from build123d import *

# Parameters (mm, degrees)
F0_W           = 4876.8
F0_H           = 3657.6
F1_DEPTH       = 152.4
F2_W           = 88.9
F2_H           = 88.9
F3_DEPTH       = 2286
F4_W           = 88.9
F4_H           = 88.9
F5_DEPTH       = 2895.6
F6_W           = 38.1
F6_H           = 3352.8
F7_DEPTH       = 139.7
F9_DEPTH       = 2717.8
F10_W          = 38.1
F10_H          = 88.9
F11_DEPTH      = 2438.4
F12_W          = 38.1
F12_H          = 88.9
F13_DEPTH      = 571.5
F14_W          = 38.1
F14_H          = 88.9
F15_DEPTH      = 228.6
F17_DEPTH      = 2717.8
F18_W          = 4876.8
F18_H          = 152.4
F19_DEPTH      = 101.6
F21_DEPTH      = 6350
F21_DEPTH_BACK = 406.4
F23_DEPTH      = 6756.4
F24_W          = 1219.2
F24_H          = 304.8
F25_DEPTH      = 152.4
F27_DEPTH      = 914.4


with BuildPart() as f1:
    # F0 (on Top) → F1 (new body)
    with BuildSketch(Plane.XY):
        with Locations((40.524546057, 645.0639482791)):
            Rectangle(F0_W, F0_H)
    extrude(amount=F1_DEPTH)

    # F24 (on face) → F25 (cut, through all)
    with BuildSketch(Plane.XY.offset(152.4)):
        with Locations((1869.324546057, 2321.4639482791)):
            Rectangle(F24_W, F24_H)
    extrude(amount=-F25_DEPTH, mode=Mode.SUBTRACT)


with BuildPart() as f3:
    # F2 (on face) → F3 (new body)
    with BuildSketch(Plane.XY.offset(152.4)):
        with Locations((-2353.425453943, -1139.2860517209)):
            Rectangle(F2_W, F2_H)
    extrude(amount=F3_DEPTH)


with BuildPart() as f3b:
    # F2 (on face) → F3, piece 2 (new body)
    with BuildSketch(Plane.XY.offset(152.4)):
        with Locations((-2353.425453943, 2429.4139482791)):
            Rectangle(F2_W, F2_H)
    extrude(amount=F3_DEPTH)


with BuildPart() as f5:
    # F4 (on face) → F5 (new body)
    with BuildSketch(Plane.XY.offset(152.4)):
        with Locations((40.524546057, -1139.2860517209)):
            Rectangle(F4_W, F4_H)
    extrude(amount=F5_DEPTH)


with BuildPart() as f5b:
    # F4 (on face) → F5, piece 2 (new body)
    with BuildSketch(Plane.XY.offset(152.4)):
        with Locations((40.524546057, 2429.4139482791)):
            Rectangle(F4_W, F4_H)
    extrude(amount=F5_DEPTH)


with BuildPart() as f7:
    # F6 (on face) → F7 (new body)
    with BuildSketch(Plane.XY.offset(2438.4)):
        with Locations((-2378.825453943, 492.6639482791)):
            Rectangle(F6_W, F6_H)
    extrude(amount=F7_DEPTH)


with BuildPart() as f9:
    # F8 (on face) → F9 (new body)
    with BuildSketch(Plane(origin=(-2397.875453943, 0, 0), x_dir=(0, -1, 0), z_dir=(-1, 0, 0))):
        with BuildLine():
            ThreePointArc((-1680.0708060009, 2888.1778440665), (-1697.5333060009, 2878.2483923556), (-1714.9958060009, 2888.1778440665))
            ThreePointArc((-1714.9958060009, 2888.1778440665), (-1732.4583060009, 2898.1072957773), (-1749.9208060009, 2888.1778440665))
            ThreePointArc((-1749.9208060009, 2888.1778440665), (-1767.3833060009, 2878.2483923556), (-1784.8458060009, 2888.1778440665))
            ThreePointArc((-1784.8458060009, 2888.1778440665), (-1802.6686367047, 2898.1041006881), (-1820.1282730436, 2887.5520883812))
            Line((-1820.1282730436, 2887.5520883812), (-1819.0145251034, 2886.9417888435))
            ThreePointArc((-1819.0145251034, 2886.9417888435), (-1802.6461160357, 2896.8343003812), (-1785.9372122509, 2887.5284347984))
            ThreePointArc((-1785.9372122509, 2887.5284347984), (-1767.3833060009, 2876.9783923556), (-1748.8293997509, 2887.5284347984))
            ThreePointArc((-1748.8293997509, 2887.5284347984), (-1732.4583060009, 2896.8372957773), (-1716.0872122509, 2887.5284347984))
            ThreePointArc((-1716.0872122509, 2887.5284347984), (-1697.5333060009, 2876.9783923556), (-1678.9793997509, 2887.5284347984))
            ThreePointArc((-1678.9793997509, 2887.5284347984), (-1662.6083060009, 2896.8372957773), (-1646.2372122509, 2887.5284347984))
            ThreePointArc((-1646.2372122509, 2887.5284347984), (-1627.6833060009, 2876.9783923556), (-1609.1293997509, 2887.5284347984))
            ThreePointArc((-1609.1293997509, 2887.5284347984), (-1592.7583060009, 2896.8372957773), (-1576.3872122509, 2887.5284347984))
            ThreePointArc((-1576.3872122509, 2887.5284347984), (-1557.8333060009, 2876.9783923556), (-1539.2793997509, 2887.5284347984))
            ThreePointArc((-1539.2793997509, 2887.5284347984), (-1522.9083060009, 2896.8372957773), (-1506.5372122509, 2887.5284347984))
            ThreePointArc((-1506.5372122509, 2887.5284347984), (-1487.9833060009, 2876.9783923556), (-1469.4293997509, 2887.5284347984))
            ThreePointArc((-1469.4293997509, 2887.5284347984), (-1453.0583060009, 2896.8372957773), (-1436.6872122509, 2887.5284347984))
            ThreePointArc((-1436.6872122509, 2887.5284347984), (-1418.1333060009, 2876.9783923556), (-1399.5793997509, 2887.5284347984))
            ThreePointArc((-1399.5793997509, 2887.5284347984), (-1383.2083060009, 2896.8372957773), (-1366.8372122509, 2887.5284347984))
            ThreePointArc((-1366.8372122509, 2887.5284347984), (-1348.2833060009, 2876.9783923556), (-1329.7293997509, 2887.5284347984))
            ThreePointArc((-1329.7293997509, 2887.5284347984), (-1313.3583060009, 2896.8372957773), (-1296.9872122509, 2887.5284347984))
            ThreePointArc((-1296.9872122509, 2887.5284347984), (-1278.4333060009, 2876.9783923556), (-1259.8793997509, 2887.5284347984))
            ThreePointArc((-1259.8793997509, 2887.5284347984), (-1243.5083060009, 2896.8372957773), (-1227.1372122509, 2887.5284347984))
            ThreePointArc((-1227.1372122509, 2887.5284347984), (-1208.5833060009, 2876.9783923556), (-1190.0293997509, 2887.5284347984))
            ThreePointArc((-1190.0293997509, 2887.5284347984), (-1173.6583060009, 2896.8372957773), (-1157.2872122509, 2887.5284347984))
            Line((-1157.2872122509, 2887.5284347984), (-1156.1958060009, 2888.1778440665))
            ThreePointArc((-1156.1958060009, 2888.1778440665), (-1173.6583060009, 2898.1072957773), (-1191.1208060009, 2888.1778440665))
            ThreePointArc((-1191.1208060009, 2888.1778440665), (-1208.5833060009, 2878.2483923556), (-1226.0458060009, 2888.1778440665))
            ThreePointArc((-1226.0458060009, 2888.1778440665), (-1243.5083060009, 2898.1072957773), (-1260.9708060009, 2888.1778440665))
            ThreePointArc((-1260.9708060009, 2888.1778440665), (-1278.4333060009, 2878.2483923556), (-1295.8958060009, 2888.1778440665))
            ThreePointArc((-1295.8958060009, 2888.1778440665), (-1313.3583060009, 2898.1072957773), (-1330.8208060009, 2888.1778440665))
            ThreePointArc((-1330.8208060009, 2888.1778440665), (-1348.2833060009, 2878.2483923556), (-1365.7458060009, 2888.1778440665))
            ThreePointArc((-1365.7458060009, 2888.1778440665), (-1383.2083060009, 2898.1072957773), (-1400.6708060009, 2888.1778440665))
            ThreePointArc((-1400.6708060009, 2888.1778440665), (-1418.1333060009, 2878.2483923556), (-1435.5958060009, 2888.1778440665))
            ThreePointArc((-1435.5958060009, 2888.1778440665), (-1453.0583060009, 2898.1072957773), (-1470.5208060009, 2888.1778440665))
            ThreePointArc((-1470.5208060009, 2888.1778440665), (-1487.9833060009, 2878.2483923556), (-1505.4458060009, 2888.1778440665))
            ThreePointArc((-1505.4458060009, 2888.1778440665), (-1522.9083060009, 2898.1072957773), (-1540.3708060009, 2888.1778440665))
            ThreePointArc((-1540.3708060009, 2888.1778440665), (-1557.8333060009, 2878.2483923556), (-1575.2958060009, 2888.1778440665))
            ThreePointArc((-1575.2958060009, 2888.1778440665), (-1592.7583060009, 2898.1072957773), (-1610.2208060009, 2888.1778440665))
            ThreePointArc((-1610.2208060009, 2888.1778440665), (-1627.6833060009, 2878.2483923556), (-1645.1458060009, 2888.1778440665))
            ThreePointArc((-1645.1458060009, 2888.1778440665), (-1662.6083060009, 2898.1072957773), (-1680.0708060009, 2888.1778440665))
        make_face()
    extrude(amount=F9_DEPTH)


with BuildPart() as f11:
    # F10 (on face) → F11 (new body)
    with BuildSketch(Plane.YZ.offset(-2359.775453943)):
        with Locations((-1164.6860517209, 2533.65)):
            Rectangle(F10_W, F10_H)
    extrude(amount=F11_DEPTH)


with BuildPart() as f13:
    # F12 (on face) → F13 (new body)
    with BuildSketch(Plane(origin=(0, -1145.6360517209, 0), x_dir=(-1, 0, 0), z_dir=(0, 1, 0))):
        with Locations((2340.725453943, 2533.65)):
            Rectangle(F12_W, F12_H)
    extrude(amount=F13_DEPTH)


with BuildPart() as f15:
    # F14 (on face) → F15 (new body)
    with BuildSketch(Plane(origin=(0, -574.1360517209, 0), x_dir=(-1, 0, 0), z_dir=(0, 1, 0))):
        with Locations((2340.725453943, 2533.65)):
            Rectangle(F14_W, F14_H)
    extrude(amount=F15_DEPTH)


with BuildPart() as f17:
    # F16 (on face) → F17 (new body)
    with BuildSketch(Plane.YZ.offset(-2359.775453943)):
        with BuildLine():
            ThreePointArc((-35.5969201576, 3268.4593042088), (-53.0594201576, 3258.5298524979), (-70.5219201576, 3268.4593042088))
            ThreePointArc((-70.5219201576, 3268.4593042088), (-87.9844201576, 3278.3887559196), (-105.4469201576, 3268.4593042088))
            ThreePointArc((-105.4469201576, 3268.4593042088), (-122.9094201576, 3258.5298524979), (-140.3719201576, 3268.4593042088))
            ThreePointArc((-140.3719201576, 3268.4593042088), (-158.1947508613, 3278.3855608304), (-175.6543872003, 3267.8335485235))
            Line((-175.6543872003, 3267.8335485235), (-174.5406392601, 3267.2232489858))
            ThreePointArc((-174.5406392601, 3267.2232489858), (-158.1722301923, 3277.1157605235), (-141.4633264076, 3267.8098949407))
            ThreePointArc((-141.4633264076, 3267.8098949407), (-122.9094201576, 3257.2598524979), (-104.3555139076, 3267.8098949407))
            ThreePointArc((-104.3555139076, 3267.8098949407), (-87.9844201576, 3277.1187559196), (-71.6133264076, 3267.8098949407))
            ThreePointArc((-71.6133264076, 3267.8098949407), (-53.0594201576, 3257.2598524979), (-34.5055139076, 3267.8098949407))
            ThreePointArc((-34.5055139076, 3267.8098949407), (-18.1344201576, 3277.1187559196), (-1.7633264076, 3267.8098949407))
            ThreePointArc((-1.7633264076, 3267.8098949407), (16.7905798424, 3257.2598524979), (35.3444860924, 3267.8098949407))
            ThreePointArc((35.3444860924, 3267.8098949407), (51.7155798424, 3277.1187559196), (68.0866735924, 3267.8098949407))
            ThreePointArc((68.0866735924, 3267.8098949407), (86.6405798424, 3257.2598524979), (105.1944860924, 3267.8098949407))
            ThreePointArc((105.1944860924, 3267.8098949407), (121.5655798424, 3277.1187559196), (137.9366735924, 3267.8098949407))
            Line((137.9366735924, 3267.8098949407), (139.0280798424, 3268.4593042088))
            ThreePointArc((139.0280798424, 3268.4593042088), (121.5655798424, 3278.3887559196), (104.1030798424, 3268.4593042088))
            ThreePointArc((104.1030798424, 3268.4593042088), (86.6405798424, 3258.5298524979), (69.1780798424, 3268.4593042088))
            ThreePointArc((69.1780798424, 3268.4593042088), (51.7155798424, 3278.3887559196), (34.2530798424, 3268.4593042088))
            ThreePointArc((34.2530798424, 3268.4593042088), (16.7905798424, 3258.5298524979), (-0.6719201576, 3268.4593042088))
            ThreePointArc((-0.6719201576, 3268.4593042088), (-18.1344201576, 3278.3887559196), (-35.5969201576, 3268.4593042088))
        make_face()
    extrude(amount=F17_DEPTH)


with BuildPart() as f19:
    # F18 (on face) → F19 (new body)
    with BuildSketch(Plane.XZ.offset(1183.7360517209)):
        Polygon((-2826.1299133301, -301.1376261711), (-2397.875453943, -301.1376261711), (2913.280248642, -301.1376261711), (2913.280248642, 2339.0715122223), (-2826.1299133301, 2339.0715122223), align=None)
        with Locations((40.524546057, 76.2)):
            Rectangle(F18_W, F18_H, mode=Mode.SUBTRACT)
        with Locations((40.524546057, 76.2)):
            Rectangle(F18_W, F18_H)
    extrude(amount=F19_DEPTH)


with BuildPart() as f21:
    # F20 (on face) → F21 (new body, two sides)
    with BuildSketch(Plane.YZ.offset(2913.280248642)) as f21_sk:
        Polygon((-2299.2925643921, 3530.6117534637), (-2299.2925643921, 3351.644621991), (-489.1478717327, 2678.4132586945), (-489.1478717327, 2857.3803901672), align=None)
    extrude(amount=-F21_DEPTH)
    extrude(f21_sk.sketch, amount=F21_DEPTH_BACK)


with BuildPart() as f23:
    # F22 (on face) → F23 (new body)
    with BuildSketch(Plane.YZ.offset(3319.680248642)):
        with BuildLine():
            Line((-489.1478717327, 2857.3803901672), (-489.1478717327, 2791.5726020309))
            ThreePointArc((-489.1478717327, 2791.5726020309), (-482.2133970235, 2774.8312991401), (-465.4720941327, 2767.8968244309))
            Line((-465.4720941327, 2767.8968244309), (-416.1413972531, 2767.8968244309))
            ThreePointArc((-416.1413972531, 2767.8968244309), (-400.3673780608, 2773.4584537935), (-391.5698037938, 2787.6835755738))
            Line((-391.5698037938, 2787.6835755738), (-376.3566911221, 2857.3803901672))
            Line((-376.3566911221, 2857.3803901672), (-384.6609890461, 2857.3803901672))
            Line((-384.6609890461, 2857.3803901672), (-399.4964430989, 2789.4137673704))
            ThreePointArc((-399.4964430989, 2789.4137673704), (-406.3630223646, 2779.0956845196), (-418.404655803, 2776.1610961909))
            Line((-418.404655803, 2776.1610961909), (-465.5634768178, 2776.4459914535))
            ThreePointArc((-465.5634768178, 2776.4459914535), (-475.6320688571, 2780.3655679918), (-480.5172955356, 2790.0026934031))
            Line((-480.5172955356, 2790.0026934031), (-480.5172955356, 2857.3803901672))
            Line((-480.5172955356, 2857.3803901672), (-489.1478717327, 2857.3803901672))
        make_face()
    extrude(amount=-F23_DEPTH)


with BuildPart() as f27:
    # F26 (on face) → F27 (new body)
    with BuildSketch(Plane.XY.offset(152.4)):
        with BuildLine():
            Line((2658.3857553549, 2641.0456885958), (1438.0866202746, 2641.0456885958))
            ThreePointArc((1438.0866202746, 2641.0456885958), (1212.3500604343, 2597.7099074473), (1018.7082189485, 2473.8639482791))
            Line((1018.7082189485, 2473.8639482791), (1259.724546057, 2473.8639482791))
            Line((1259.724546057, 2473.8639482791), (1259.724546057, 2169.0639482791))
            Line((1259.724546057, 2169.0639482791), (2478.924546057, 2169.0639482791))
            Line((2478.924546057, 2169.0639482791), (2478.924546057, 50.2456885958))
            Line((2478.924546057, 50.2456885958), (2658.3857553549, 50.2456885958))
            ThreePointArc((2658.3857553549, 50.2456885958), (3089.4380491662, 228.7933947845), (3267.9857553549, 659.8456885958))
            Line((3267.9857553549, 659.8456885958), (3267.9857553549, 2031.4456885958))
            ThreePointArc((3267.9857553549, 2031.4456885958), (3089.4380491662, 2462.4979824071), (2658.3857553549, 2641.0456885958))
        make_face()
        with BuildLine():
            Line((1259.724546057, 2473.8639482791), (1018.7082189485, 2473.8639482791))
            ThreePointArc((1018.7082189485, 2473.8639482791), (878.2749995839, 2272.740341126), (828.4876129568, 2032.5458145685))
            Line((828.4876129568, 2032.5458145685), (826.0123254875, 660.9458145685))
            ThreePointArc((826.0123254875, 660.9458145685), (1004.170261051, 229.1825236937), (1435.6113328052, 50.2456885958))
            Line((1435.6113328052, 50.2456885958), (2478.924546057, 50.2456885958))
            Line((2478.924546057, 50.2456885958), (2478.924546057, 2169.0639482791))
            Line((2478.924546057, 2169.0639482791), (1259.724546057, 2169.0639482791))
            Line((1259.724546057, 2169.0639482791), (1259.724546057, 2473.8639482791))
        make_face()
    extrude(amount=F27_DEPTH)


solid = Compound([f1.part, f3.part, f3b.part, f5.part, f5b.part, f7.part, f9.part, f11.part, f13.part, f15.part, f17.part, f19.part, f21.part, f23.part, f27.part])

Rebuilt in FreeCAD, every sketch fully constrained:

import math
import FreeCAD as App
import Part
import Sketcher
from FreeCAD import Vector
Q = App.Units.Quantity


def add_polygon(sketch, points):
    """Adds a closed chain of lines whose ends are joined by coincident constraints."""
    first, n = sketch.GeometryCount, len(points)
    for a, b in zip(points, points[1:] + points[:1]):
        sketch.addGeometry(Part.LineSegment(App.Vector(*a, 0), App.Vector(*b, 0)), False)
    for i in range(n):
        sketch.addConstraint(Sketcher.Constraint("Coincident", first + i, 2, first + (i + 1) % n, 1))

doc = App.newDocument("Part")
params = doc.addObject("Spreadsheet::Sheet", "Params")
for row, (alias, value) in enumerate([
    ("sketch1_width", "192 in"),
    ("sketch1_height", "144 in"),
    ("pad1_length", "6 in"),
    ("sketch2_width", "48 in"),
    ("sketch2_height", "12 in"),
    ("sketch3_width", "3.5 in"),
    ("pad2_length", "90 in"),
    ("sketch4_width", "3.5 in"),
    ("pad3_length", "90 in"),
    ("sketch5_width", "3.5 in"),
    ("pad4_length", "114 in"),
    ("sketch6_width", "3.5 in"),
    ("pad5_length", "114 in"),
    ("sketch7_height", "132 in"),
    ("sketch7_width", "1.5 in"),
    ("pad6_length", "5.5 in"),
    ("sketch8_radius", "0.8 in"),
    ("sketch8_radius2", "0.75 in"),
    ("pad7_length", "107 in"),
    ("sketch9_width", "1.5 in"),
    ("sketch9_height", "3.5 in"),
    ("pad8_length", "96 in"),
    ("sketch10_width", "1.5 in"),
    ("sketch10_height", "3.5 in"),
    ("pad9_length", "22.5 in"),
    ("sketch11_width", "1.5 in"),
    ("sketch11_height", "3.5 in"),
    ("pad10_length", "9 in"),
    ("sketch12_radius", "0.8 in"),
    ("sketch12_radius2", "0.75 in"),
    ("pad11_length", "107 in"),
    ("pad12_length", "4 in"),
    ("pad13_length", "250 in"),
    ("pad13_length2", "16 in"),
    ("pad14_length", "266 in"),
    ("sketch16_radius", "24 in"),
    ("sketch16_height", "54 in"),
    ("pad15_length", "36 in"),
], start=1):
    params.set(f"A{row}", alias)
    params.set(f"B{row}", "=" + value)
    params.setAlias(f"B{row}", alias)

body = doc.addObject("PartDesign::Body", "Body")

# Sketch on XY plane
sketch1 = body.newObject("Sketcher::SketchObject", "Sketch")
sketch1.AttachmentSupport = (doc.getObject("XY_Plane"), [""])
sketch1.MapMode = "FlatFace"
add_polygon(sketch1, [(-2397.875454, 2473.863948), (-2397.875454, -1183.736052), (2478.924546, -1183.736052), (2478.924546, 2473.863948)])  # lines 0-3
sketch1.addConstraint([
    Sketcher.Constraint("Vertical", 0),
    Sketcher.Constraint("Horizontal", 1),
    Sketcher.Constraint("Vertical", 2),
    Sketcher.Constraint("Horizontal", 3),
    Sketcher.Constraint("DistanceX", 1, 1, 1, 2, Q("192 in")),
    Sketcher.Constraint("DistanceY", 0, 2, 0, 1, Q("144 in")),
    Sketcher.Constraint("DistanceY", 0, 2, -1, 1, 1183.736052),
    Sketcher.Constraint("DistanceX", 0, 2, -1, 1, 2397.875454),
])
sketch1.setExpression("Constraints[8]", "Params.sketch1_width")
sketch1.setExpression("Constraints[9]", "Params.sketch1_height")
pad1 = body.newObject("PartDesign::Pad", "Pad")
pad1.Profile = sketch1
pad1.setExpression("Length", "Params.pad1_length")

# Sketch on XY plane
sketch2 = body.newObject("Sketcher::SketchObject", "Sketch001")
sketch2.AttachmentSupport = (doc.getObject("XY_Plane"), [""])
sketch2.MapMode = "FlatFace"
sketch2.AttachmentOffset = App.Placement(Vector(0, 0, 6 * 25.4), App.Rotation())
add_polygon(sketch2, [(1259.724546, 2473.863948), (1259.724546, 2169.063948), (2478.924546, 2169.063948), (2478.924546, 2473.863948)])  # lines 0-3
sketch2.addConstraint([
    Sketcher.Constraint("Vertical", 0),
    Sketcher.Constraint("Horizontal", 1),
    Sketcher.Constraint("Vertical", 2),
    Sketcher.Constraint("Horizontal", 3),
    Sketcher.Constraint("DistanceX", 1, 1, 1, 2, Q("48 in")),
    Sketcher.Constraint("DistanceY", 0, 2, 0, 1, Q("12 in")),
    Sketcher.Constraint("DistanceY", -1, 1, 0, 2, 2169.063948),
    Sketcher.Constraint("DistanceX", -1, 1, 0, 2, 1259.724546),
])
sketch2.setExpression("Constraints[8]", "Params.sketch2_width")
sketch2.setExpression("Constraints[9]", "Params.sketch2_height")
pocket1 = body.newObject("PartDesign::Pocket", "Pocket")
pocket1.Profile = sketch2
pocket1.Type = "ThroughAll"
body2 = doc.addObject("PartDesign::Body", "Body001")

# Sketch on XY plane
sketch3 = body2.newObject("Sketcher::SketchObject", "Sketch002")
sketch3.AttachmentSupport = (doc.getObject("XY_Plane001"), [""])
sketch3.MapMode = "FlatFace"
sketch3.AttachmentOffset = App.Placement(Vector(0, 0, 6 * 25.4), App.Rotation())
add_polygon(sketch3, [(-2397.875454, -1094.836052), (-2397.875454, -1183.736052), (-2308.975454, -1183.736052), (-2308.975454, -1094.836052)])  # lines 0-3
sketch3.addConstraint([
    Sketcher.Constraint("Vertical", 0),
    Sketcher.Constraint("Horizontal", 1),
    Sketcher.Constraint("Vertical", 2),
    Sketcher.Constraint("Horizontal", 3),
    Sketcher.Constraint("Equal", 3, 0),
    Sketcher.Constraint("DistanceX", 1, 1, 1, 2, Q("3.5 in")),
    Sketcher.Constraint("DistanceY", 0, 2, -1, 1, 1183.736052),
    Sketcher.Constraint("DistanceX", 0, 2, -1, 1, 2397.875454),
])
sketch3.setExpression("Constraints[9]", "Params.sketch3_width")
pad2 = body2.newObject("PartDesign::Pad", "Pad001")
pad2.Profile = sketch3
pad2.setExpression("Length", "Params.pad2_length")
body3 = doc.addObject("PartDesign::Body", "Body002")

# Sketch on XY plane
sketch4 = body3.newObject("Sketcher::SketchObject", "Sketch003")
sketch4.AttachmentSupport = (doc.getObject("XY_Plane002"), [""])
sketch4.MapMode = "FlatFace"
sketch4.AttachmentOffset = App.Placement(Vector(0, 0, 6 * 25.4), App.Rotation())
add_polygon(sketch4, [(-2397.875454, 2473.863948), (-2397.875454, 2384.963948), (-2308.975454, 2384.963948), (-2308.975454, 2473.863948)])  # lines 0-3
sketch4.addConstraint([
    Sketcher.Constraint("Vertical", 0),
    Sketcher.Constraint("Horizontal", 1),
    Sketcher.Constraint("Vertical", 2),
    Sketcher.Constraint("Horizontal", 3),
    Sketcher.Constraint("Equal", 3, 0),
    Sketcher.Constraint("DistanceX", 1, 1, 1, 2, Q("3.5 in")),
    Sketcher.Constraint("DistanceY", -1, 1, 0, 2, 2384.963948),
    Sketcher.Constraint("DistanceX", 0, 2, -1, 1, 2397.875454),
])
sketch4.setExpression("Constraints[9]", "Params.sketch4_width")
pad3 = body3.newObject("PartDesign::Pad", "Pad002")
pad3.Profile = sketch4
pad3.setExpression("Length", "Params.pad3_length")
body4 = doc.addObject("PartDesign::Body", "Body003")

# Sketch on XY plane
sketch5 = body4.newObject("Sketcher::SketchObject", "Sketch004")
sketch5.AttachmentSupport = (doc.getObject("XY_Plane003"), [""])
sketch5.MapMode = "FlatFace"
sketch5.AttachmentOffset = App.Placement(Vector(0, 0, 6 * 25.4), App.Rotation())
add_polygon(sketch5, [(-3.925454, -1094.836052), (-3.925454, -1183.736052), (84.974546, -1183.736052), (84.974546, -1094.836052)])  # lines 0-3
sketch5.addConstraint([
    Sketcher.Constraint("Vertical", 0),
    Sketcher.Constraint("Horizontal", 1),
    Sketcher.Constraint("Vertical", 2),
    Sketcher.Constraint("Horizontal", 3),
    Sketcher.Constraint("Equal", 3, 0),
    Sketcher.Constraint("DistanceX", 1, 1, 1, 2, Q("3.5 in")),
    Sketcher.Constraint("DistanceY", 0, 2, -1, 1, 1183.736052),
    Sketcher.Constraint("DistanceX", 0, 2, -1, 1, 3.925454),
])
sketch5.setExpression("Constraints[9]", "Params.sketch5_width")
pad4 = body4.newObject("PartDesign::Pad", "Pad003")
pad4.Profile = sketch5
pad4.setExpression("Length", "Params.pad4_length")
body5 = doc.addObject("PartDesign::Body", "Body004")

# Sketch on XY plane
sketch6 = body5.newObject("Sketcher::SketchObject", "Sketch005")
sketch6.AttachmentSupport = (doc.getObject("XY_Plane004"), [""])
sketch6.MapMode = "FlatFace"
sketch6.AttachmentOffset = App.Placement(Vector(0, 0, 6 * 25.4), App.Rotation())
add_polygon(sketch6, [(-3.925454, 2473.863948), (-3.925454, 2384.963948), (84.974546, 2384.963948), (84.974546, 2473.863948)])  # lines 0-3
sketch6.addConstraint([
    Sketcher.Constraint("Vertical", 0),
    Sketcher.Constraint("Horizontal", 1),
    Sketcher.Constraint("Vertical", 2),
    Sketcher.Constraint("Horizontal", 3),
    Sketcher.Constraint("Equal", 3, 0),
    Sketcher.Constraint("DistanceX", 1, 1, 1, 2, Q("3.5 in")),
    Sketcher.Constraint("DistanceY", -1, 1, 0, 2, 2384.963948),
    Sketcher.Constraint("DistanceX", 0, 2, -1, 1, 3.925454),
])
sketch6.setExpression("Constraints[9]", "Params.sketch6_width")
pad5 = body5.newObject("PartDesign::Pad", "Pad004")
pad5.Profile = sketch6
pad5.setExpression("Length", "Params.pad5_length")
body6 = doc.addObject("PartDesign::Body", "Body005")

# Sketch on XY plane
sketch7 = body6.newObject("Sketcher::SketchObject", "Sketch006")
sketch7.AttachmentSupport = (doc.getObject("XY_Plane005"), [""])
sketch7.MapMode = "FlatFace"
sketch7.AttachmentOffset = App.Placement(Vector(0, 0, 96 * 25.4), App.Rotation())
add_polygon(sketch7, [(-2397.875454, 2169.063948), (-2397.875454, -1183.736052), (-2359.775454, -1183.736052), (-2359.775454, 2169.063948)])  # lines 0-3
sketch7.addConstraint([
    Sketcher.Constraint("Vertical", 0),
    Sketcher.Constraint("Horizontal", 1),
    Sketcher.Constraint("Vertical", 2),
    Sketcher.Constraint("Horizontal", 3),
    Sketcher.Constraint("DistanceY", 0, 2, 0, 1, Q("132 in")),
    Sketcher.Constraint("DistanceX", 1, 1, 1, 2, Q("1.5 in")),
    Sketcher.Constraint("DistanceY", 0, 2, -1, 1, 1183.736052),
    Sketcher.Constraint("DistanceX", 0, 2, -1, 1, 2397.875454),
])
sketch7.setExpression("Constraints[8]", "Params.sketch7_height")
sketch7.setExpression("Constraints[9]", "Params.sketch7_width")
pad6 = body6.newObject("PartDesign::Pad", "Pad005")
pad6.Profile = sketch7
pad6.setExpression("Length", "Params.pad6_length")
body7 = doc.addObject("PartDesign::Body", "Body006")

# Sketch on YZ plane
sketch8 = body7.newObject("Sketcher::SketchObject", "Sketch007")
sketch8.AttachmentSupport = (doc.getObject("YZ_Plane006"), [""])
sketch8.MapMode = "FlatFace"
sketch8.AttachmentOffset = App.Placement(Vector(0, 0, -2397.875454), App.Rotation())
sketch8.addGeometry([
    Part.ArcOfCircle(Part.Circle(Vector(1697.533306, 2898.568392, 0), Vector(0, 0, 1), 20.32), math.radians(-149.24648), math.radians(-30.75352)),  # 0
    Part.ArcOfCircle(Part.Circle(Vector(1732.458306, 2877.787296, 0), Vector(0, 0, 1), 20.32), math.radians(30.75352), math.radians(149.24648)),  # 1
    Part.ArcOfCircle(Part.Circle(Vector(1767.383306, 2898.568392, 0), Vector(0, 0, 1), 20.32), math.radians(-149.24648), math.radians(-30.75352)),  # 2
    Part.ArcOfCircle(Part.Circle(Vector(1802.308306, 2877.787296, 0), Vector(0, 0, 1), 20.32), math.radians(28.721383), math.radians(149.24648)),  # 3
    Part.LineSegment(Vector(1820.128273, 2887.552088, 0), Vector(1819.014525, 2886.941789, 0)),  # 4
    Part.ArcOfCircle(Part.Circle(Vector(1802.308306, 2877.787296, 0), Vector(0, 0, 1), 19.05), math.radians(28.721383), math.radians(149.24648)),  # 5
    Part.ArcOfCircle(Part.Circle(Vector(1767.383306, 2898.568392, 0), Vector(0, 0, 1), 21.59), math.radians(-149.24648), math.radians(-30.75352)),  # 6
    Part.ArcOfCircle(Part.Circle(Vector(1732.458306, 2877.787296, 0), Vector(0, 0, 1), 19.05), math.radians(30.75352), math.radians(149.24648)),  # 7
    Part.ArcOfCircle(Part.Circle(Vector(1697.533306, 2898.568392, 0), Vector(0, 0, 1), 21.59), math.radians(-149.24648), math.radians(-30.75352)),  # 8
    Part.ArcOfCircle(Part.Circle(Vector(1662.608306, 2877.787296, 0), Vector(0, 0, 1), 19.05), math.radians(30.75352), math.radians(149.24648)),  # 9
    Part.ArcOfCircle(Part.Circle(Vector(1627.683306, 2898.568392, 0), Vector(0, 0, 1), 21.59), math.radians(-149.24648), math.radians(-30.75352)),  # 10
    Part.ArcOfCircle(Part.Circle(Vector(1592.758306, 2877.787296, 0), Vector(0, 0, 1), 19.05), math.radians(30.75352), math.radians(149.24648)),  # 11
    Part.ArcOfCircle(Part.Circle(Vector(1557.833306, 2898.568392, 0), Vector(0, 0, 1), 21.59), math.radians(-149.24648), math.radians(-30.75352)),  # 12
    Part.ArcOfCircle(Part.Circle(Vector(1522.908306, 2877.787296, 0), Vector(0, 0, 1), 19.05), math.radians(30.75352), math.radians(149.24648)),  # 13
    Part.ArcOfCircle(Part.Circle(Vector(1487.983306, 2898.568392, 0), Vector(0, 0, 1), 21.59), math.radians(-149.24648), math.radians(-30.75352)),  # 14
    Part.ArcOfCircle(Part.Circle(Vector(1453.058306, 2877.787296, 0), Vector(0, 0, 1), 19.05), math.radians(30.75352), math.radians(149.24648)),  # 15
    Part.ArcOfCircle(Part.Circle(Vector(1418.133306, 2898.568392, 0), Vector(0, 0, 1), 21.59), math.radians(-149.24648), math.radians(-30.75352)),  # 16
    Part.ArcOfCircle(Part.Circle(Vector(1383.208306, 2877.787296, 0), Vector(0, 0, 1), 19.05), math.radians(30.75352), math.radians(149.24648)),  # 17
    Part.ArcOfCircle(Part.Circle(Vector(1348.283306, 2898.568392, 0), Vector(0, 0, 1), 21.59), math.radians(-149.24648), math.radians(-30.75352)),  # 18
    Part.ArcOfCircle(Part.Circle(Vector(1313.358306, 2877.787296, 0), Vector(0, 0, 1), 19.05), math.radians(30.75352), math.radians(149.24648)),  # 19
    Part.ArcOfCircle(Part.Circle(Vector(1278.433306, 2898.568392, 0), Vector(0, 0, 1), 21.59), math.radians(-149.24648), math.radians(-30.75352)),  # 20
    Part.ArcOfCircle(Part.Circle(Vector(1243.508306, 2877.787296, 0), Vector(0, 0, 1), 19.05), math.radians(30.75352), math.radians(149.24648)),  # 21
    Part.ArcOfCircle(Part.Circle(Vector(1208.583306, 2898.568392, 0), Vector(0, 0, 1), 21.59), math.radians(-149.24648), math.radians(-30.75352)),  # 22
    Part.ArcOfCircle(Part.Circle(Vector(1173.658306, 2877.787296, 0), Vector(0, 0, 1), 19.05), math.radians(30.75352), math.radians(149.24648)),  # 23
    Part.LineSegment(Vector(1157.287212, 2887.528435, 0), Vector(1156.195806, 2888.177844, 0)),  # 24
    Part.ArcOfCircle(Part.Circle(Vector(1173.658306, 2877.787296, 0), Vector(0, 0, 1), 20.32), math.radians(30.75352), math.radians(149.24648)),  # 25
    Part.ArcOfCircle(Part.Circle(Vector(1208.583306, 2898.568392, 0), Vector(0, 0, 1), 20.32), math.radians(-149.24648), math.radians(-30.75352)),  # 26
    Part.ArcOfCircle(Part.Circle(Vector(1243.508306, 2877.787296, 0), Vector(0, 0, 1), 20.32), math.radians(30.75352), math.radians(149.24648)),  # 27
    Part.ArcOfCircle(Part.Circle(Vector(1278.433306, 2898.568392, 0), Vector(0, 0, 1), 20.32), math.radians(-149.24648), math.radians(-30.75352)),  # 28
    Part.ArcOfCircle(Part.Circle(Vector(1313.358306, 2877.787296, 0), Vector(0, 0, 1), 20.32), math.radians(30.75352), math.radians(149.24648)),  # 29
    Part.ArcOfCircle(Part.Circle(Vector(1348.283306, 2898.568392, 0), Vector(0, 0, 1), 20.32), math.radians(-149.24648), math.radians(-30.75352)),  # 30
    Part.ArcOfCircle(Part.Circle(Vector(1383.208306, 2877.787296, 0), Vector(0, 0, 1), 20.32), math.radians(30.75352), math.radians(149.24648)),  # 31
    Part.ArcOfCircle(Part.Circle(Vector(1418.133306, 2898.568392, 0), Vector(0, 0, 1), 20.32), math.radians(-149.24648), math.radians(-30.75352)),  # 32
    Part.ArcOfCircle(Part.Circle(Vector(1453.058306, 2877.787296, 0), Vector(0, 0, 1), 20.32), math.radians(30.75352), math.radians(149.24648)),  # 33
    Part.ArcOfCircle(Part.Circle(Vector(1487.983306, 2898.568392, 0), Vector(0, 0, 1), 20.32), math.radians(-149.24648), math.radians(-30.75352)),  # 34
    Part.ArcOfCircle(Part.Circle(Vector(1522.908306, 2877.787296, 0), Vector(0, 0, 1), 20.32), math.radians(30.75352), math.radians(149.24648)),  # 35
    Part.ArcOfCircle(Part.Circle(Vector(1557.833306, 2898.568392, 0), Vector(0, 0, 1), 20.32), math.radians(-149.24648), math.radians(-30.75352)),  # 36
    Part.ArcOfCircle(Part.Circle(Vector(1592.758306, 2877.787296, 0), Vector(0, 0, 1), 20.32), math.radians(30.75352), math.radians(149.24648)),  # 37
    Part.ArcOfCircle(Part.Circle(Vector(1627.683306, 2898.568392, 0), Vector(0, 0, 1), 20.32), math.radians(-149.24648), math.radians(-30.75352)),  # 38
    Part.ArcOfCircle(Part.Circle(Vector(1662.608306, 2877.787296, 0), Vector(0, 0, 1), 20.32), math.radians(30.75352), math.radians(149.24648)),  # 39
], False)
sketch8.addConstraint([
    Sketcher.Constraint("Tangent", 0, 2, 1, 2),
    Sketcher.Constraint("Tangent", 1, 1, 2, 1),
    Sketcher.Constraint("Tangent", 2, 2, 3, 2),
    Sketcher.Constraint("Coincident", 3, 1, 4, 1),
    Sketcher.Constraint("Coincident", 4, 2, 5, 1),
    Sketcher.Constraint("Tangent", 5, 2, 6, 2),
    Sketcher.Constraint("Tangent", 6, 1, 7, 1),
    Sketcher.Constraint("Tangent", 7, 2, 8, 2),
    Sketcher.Constraint("Tangent", 8, 1, 9, 1),
    Sketcher.Constraint("Tangent", 9, 2, 10, 2),
    Sketcher.Constraint("Tangent", 10, 1, 11, 1),
    Sketcher.Constraint("Tangent", 11, 2, 12, 2),
    Sketcher.Constraint("Tangent", 12, 1, 13, 1),
    Sketcher.Constraint("Tangent", 13, 2, 14, 2),
    Sketcher.Constraint("Tangent", 14, 1, 15, 1),
    Sketcher.Constraint("Tangent", 15, 2, 16, 2),
    Sketcher.Constraint("Tangent", 16, 1, 17, 1),
    Sketcher.Constraint("Tangent", 17, 2, 18, 2),
    Sketcher.Constraint("Tangent", 18, 1, 19, 1),
    Sketcher.Constraint("Tangent", 19, 2, 20, 2),
    Sketcher.Constraint("Tangent", 20, 1, 21, 1),
    Sketcher.Constraint("Tangent", 21, 2, 22, 2),
    Sketcher.Constraint("Tangent", 22, 1, 23, 1),
    Sketcher.Constraint("Coincident", 23, 2, 24, 1),
    Sketcher.Constraint("Coincident", 24, 2, 25, 2),
    Sketcher.Constraint("Tangent", 25, 1, 26, 1),
    Sketcher.Constraint("Tangent", 26, 2, 27, 2),
    Sketcher.Constraint("Tangent", 27, 1, 28, 1),
    Sketcher.Constraint("Tangent", 28, 2, 29, 2),
    Sketcher.Constraint("Tangent", 29, 1, 30, 1),
    Sketcher.Constraint("Tangent", 30, 2, 31, 2),
    Sketcher.Constraint("Tangent", 31, 1, 32, 1),
    Sketcher.Constraint("Tangent", 32, 2, 33, 2),
    Sketcher.Constraint("Tangent", 33, 1, 34, 1),
    Sketcher.Constraint("Tangent", 34, 2, 35, 2),
    Sketcher.Constraint("Tangent", 35, 1, 36, 1),
    Sketcher.Constraint("Tangent", 36, 2, 37, 2),
    Sketcher.Constraint("Tangent", 37, 1, 38, 1),
    Sketcher.Constraint("Tangent", 38, 2, 39, 2),
    Sketcher.Constraint("Tangent", 39, 1, 0, 1),
    Sketcher.Constraint("Coincident", 5, 3, 3, 3),
    Sketcher.Constraint("Coincident", 6, 3, 2, 3),
    Sketcher.Constraint("Coincident", 7, 3, 1, 3),
    Sketcher.Constraint("Coincident", 8, 3, 0, 3),
    Sketcher.Constraint("Coincident", 25, 3, 23, 3),
    Sketcher.Constraint("Coincident", 26, 3, 22, 3),
    Sketcher.Constraint("Coincident", 27, 3, 21, 3),
    Sketcher.Constraint("Coincident", 28, 3, 20, 3),
    Sketcher.Constraint("Coincident", 29, 3, 19, 3),
    Sketcher.Constraint("Coincident", 30, 3, 18, 3),
    Sketcher.Constraint("Coincident", 31, 3, 17, 3),
    Sketcher.Constraint("Coincident", 32, 3, 16, 3),
    Sketcher.Constraint("Coincident", 33, 3, 15, 3),
    Sketcher.Constraint("Coincident", 34, 3, 14, 3),
    Sketcher.Constraint("Coincident", 35, 3, 13, 3),
    Sketcher.Constraint("Coincident", 36, 3, 12, 3),
    Sketcher.Constraint("Coincident", 37, 3, 11, 3),
    Sketcher.Constraint("Coincident", 38, 3, 10, 3),
    Sketcher.Constraint("Coincident", 39, 3, 9, 3),
    Sketcher.Constraint("Equal", 0, 1),
    Sketcher.Constraint("Equal", 1, 2),
    Sketcher.Constraint("Equal", 2, 3),
    Sketcher.Constraint("Equal", 7, 9),
    Sketcher.Constraint("Equal", 8, 10),
    Sketcher.Constraint("Equal", 9, 11),
    Sketcher.Constraint("Equal", 10, 12),
    Sketcher.Constraint("Equal", 11, 13),
    Sketcher.Constraint("Equal", 12, 14),
    Sketcher.Constraint("Equal", 13, 15),
    Sketcher.Constraint("Equal", 14, 16),
    Sketcher.Constraint("Equal", 15, 17),
    Sketcher.Constraint("Equal", 16, 18),
    Sketcher.Constraint("Equal", 17, 19),
    Sketcher.Constraint("Equal", 18, 20),
    Sketcher.Constraint("Equal", 19, 21),
    Sketcher.Constraint("Equal", 20, 22),
    Sketcher.Constraint("Equal", 21, 23),
    Sketcher.Constraint("Horizontal", 0, 3, 2, 3),
    Sketcher.Constraint("Horizontal", 1, 3, 3, 3),
    Sketcher.Constraint("Horizontal", 7, 3, 9, 3),
    Sketcher.Constraint("Horizontal", 8, 3, 10, 3),
    Sketcher.Constraint("Horizontal", 9, 3, 11, 3),
    Sketcher.Constraint("Horizontal", 10, 3, 12, 3),
    Sketcher.Constraint("Horizontal", 11, 3, 13, 3),
    Sketcher.Constraint("Horizontal", 12, 3, 14, 3),
    Sketcher.Constraint("Horizontal", 13, 3, 15, 3),
    Sketcher.Constraint("Horizontal", 14, 3, 16, 3),
    Sketcher.Constraint("Horizontal", 15, 3, 17, 3),
    Sketcher.Constraint("Horizontal", 16, 3, 18, 3),
    Sketcher.Constraint("Horizontal", 17, 3, 19, 3),
    Sketcher.Constraint("Horizontal", 18, 3, 20, 3),
    Sketcher.Constraint("Horizontal", 19, 3, 21, 3),
    Sketcher.Constraint("Horizontal", 20, 3, 22, 3),
    Sketcher.Constraint("Horizontal", 21, 3, 23, 3),
    Sketcher.Constraint("Horizontal", 22, 1, 23, 2),
    Sketcher.Constraint("Horizontal", 2, 2, 24, 2),
    Sketcher.Constraint("Radius", 0, Q("0.8 in")),
    Sketcher.Constraint("Radius", 5, Q("0.75 in")),
    Sketcher.Constraint("DistanceX", -1, 1, 6, 1, 1748.8294),
    Sketcher.Constraint("DistanceX", -1, 1, 8, 1, 1678.9794),
    Sketcher.Constraint("DistanceY", -1, 1, 3, 1, 2887.552088),
    Sketcher.Constraint("DistanceY", -1, 1, 4, 2, 2886.941789),
    Sketcher.Constraint("DistanceY", -1, 1, 0, 3, 2898.568392),
])
sketch8.setExpression("Constraints[96]", "Params.sketch8_radius")
sketch8.setExpression("Constraints[97]", "Params.sketch8_radius2")
pad7 = body7.newObject("PartDesign::Pad", "Pad006")
pad7.Profile = sketch8
pad7.setExpression("Length", "Params.pad7_length")
pad7.Reversed = True
body8 = doc.addObject("PartDesign::Body", "Body007")

# Sketch on YZ plane
sketch9 = body8.newObject("Sketcher::SketchObject", "Sketch008")
sketch9.AttachmentSupport = (doc.getObject("YZ_Plane007"), [""])
sketch9.MapMode = "FlatFace"
sketch9.AttachmentOffset = App.Placement(Vector(0, 0, -2359.775454), App.Rotation())
add_polygon(sketch9, [(-1183.736052, 2578.1), (-1183.736052, 2489.2), (-1145.636052, 2489.2), (-1145.636052, 2578.1)])  # lines 0-3
sketch9.addConstraint([
    Sketcher.Constraint("Vertical", 0),
    Sketcher.Constraint("Horizontal", 1),
    Sketcher.Constraint("Vertical", 2),
    Sketcher.Constraint("Horizontal", 3),
    Sketcher.Constraint("DistanceX", 1, 1, 1, 2, Q("1.5 in")),
    Sketcher.Constraint("DistanceY", 0, 2, 0, 1, Q("3.5 in")),
    Sketcher.Constraint("DistanceY", -1, 1, 0, 2, Q("98 in")),
    Sketcher.Constraint("DistanceX", 0, 2, -1, 1, 1183.736052),
])
sketch9.setExpression("Constraints[8]", "Params.sketch9_width")
sketch9.setExpression("Constraints[9]", "Params.sketch9_height")
pad8 = body8.newObject("PartDesign::Pad", "Pad007")
pad8.Profile = sketch9
pad8.setExpression("Length", "Params.pad8_length")
body9 = doc.addObject("PartDesign::Body", "Body008")

# Sketch on XZ plane
sketch10 = body9.newObject("Sketcher::SketchObject", "Sketch009")
sketch10.AttachmentSupport = (doc.getObject("XZ_Plane008"), [""])
sketch10.MapMode = "FlatFace"
sketch10.AttachmentOffset = App.Placement(Vector(0, 0, 1145.636052), App.Rotation())
add_polygon(sketch10, [(-2321.675454, 2578.1), (-2321.675454, 2489.2), (-2359.775454, 2489.2), (-2359.775454, 2578.1)])  # lines 0-3
sketch10.addConstraint([
    Sketcher.Constraint("Vertical", 0),
    Sketcher.Constraint("Horizontal", 1),
    Sketcher.Constraint("Vertical", 2),
    Sketcher.Constraint("Horizontal", 3),
    Sketcher.Constraint("DistanceX", 1, 2, 1, 1, Q("1.5 in")),
    Sketcher.Constraint("DistanceY", 0, 2, 0, 1, Q("3.5 in")),
    Sketcher.Constraint("DistanceY", -1, 1, 0, 2, Q("98 in")),
    Sketcher.Constraint("DistanceX", 0, 2, -1, 1, 2321.675454),
])
sketch10.setExpression("Constraints[8]", "Params.sketch10_width")
sketch10.setExpression("Constraints[9]", "Params.sketch10_height")
pad9 = body9.newObject("PartDesign::Pad", "Pad008")
pad9.Profile = sketch10
pad9.setExpression("Length", "Params.pad9_length")
pad9.Reversed = True
body10 = doc.addObject("PartDesign::Body", "Body009")

# Sketch on XZ plane
sketch11 = body10.newObject("Sketcher::SketchObject", "Sketch010")
sketch11.AttachmentSupport = (doc.getObject("XZ_Plane009"), [""])
sketch11.MapMode = "FlatFace"
sketch11.AttachmentOffset = App.Placement(Vector(0, 0, 574.136052), App.Rotation())
add_polygon(sketch11, [(-2321.675454, 2578.1), (-2321.675454, 2489.2), (-2359.775454, 2489.2), (-2359.775454, 2578.1)])  # lines 0-3
sketch11.addConstraint([
    Sketcher.Constraint("Vertical", 0),
    Sketcher.Constraint("Horizontal", 1),
    Sketcher.Constraint("Vertical", 2),
    Sketcher.Constraint("Horizontal", 3),
    Sketcher.Constraint("DistanceX", 1, 2, 1, 1, Q("1.5 in")),
    Sketcher.Constraint("DistanceY", 0, 2, 0, 1, Q("3.5 in")),
    Sketcher.Constraint("DistanceY", -1, 1, 0, 2, Q("98 in")),
    Sketcher.Constraint("DistanceX", 0, 2, -1, 1, 2321.675454),
])
sketch11.setExpression("Constraints[8]", "Params.sketch11_width")
sketch11.setExpression("Constraints[9]", "Params.sketch11_height")
pad10 = body10.newObject("PartDesign::Pad", "Pad009")
pad10.Profile = sketch11
pad10.setExpression("Length", "Params.pad10_length")
pad10.Reversed = True
body11 = doc.addObject("PartDesign::Body", "Body010")

# Sketch on YZ plane
sketch12 = body11.newObject("Sketcher::SketchObject", "Sketch011")
sketch12.AttachmentSupport = (doc.getObject("YZ_Plane010"), [""])
sketch12.MapMode = "FlatFace"
sketch12.AttachmentOffset = App.Placement(Vector(0, 0, -2359.775454), App.Rotation())
sketch12.addGeometry([
    Part.ArcOfCircle(Part.Circle(Vector(-53.05942, 3278.849852, 0), Vector(0, 0, 1), 20.32), math.radians(-149.24648), math.radians(-30.75352)),  # 0
    Part.ArcOfCircle(Part.Circle(Vector(-87.98442, 3258.068756, 0), Vector(0, 0, 1), 20.32), math.radians(30.75352), math.radians(149.24648)),  # 1
    Part.ArcOfCircle(Part.Circle(Vector(-122.90942, 3278.849852, 0), Vector(0, 0, 1), 20.32), math.radians(-149.24648), math.radians(-30.75352)),  # 2
    Part.ArcOfCircle(Part.Circle(Vector(-157.83442, 3258.068756, 0), Vector(0, 0, 1), 20.32), math.radians(30.75352), math.radians(151.278617)),  # 3
    Part.LineSegment(Vector(-175.654387, 3267.833549, 0), Vector(-174.540639, 3267.223249, 0)),  # 4
    Part.ArcOfCircle(Part.Circle(Vector(-157.83442, 3258.068756, 0), Vector(0, 0, 1), 19.05), math.radians(30.75352), math.radians(151.278617)),  # 5
    Part.ArcOfCircle(Part.Circle(Vector(-122.90942, 3278.849852, 0), Vector(0, 0, 1), 21.59), math.radians(-149.24648), math.radians(-30.75352)),  # 6
    Part.ArcOfCircle(Part.Circle(Vector(-87.98442, 3258.068756, 0), Vector(0, 0, 1), 19.05), math.radians(30.75352), math.radians(149.24648)),  # 7
    Part.ArcOfCircle(Part.Circle(Vector(-53.05942, 3278.849852, 0), Vector(0, 0, 1), 21.59), math.radians(-149.24648), math.radians(-30.75352)),  # 8
    Part.ArcOfCircle(Part.Circle(Vector(-18.13442, 3258.068756, 0), Vector(0, 0, 1), 19.05), math.radians(30.75352), math.radians(149.24648)),  # 9
    Part.ArcOfCircle(Part.Circle(Vector(16.79058, 3278.849852, 0), Vector(0, 0, 1), 21.59), math.radians(-149.24648), math.radians(-30.75352)),  # 10
    Part.ArcOfCircle(Part.Circle(Vector(51.71558, 3258.068756, 0), Vector(0, 0, 1), 19.05), math.radians(30.75352), math.radians(149.24648)),  # 11
    Part.ArcOfCircle(Part.Circle(Vector(86.64058, 3278.849852, 0), Vector(0, 0, 1), 21.59), math.radians(-149.24648), math.radians(-30.75352)),  # 12
    Part.ArcOfCircle(Part.Circle(Vector(121.56558, 3258.068756, 0), Vector(0, 0, 1), 19.05), math.radians(30.75352), math.radians(149.24648)),  # 13
    Part.LineSegment(Vector(137.936674, 3267.809895, 0), Vector(139.02808, 3268.459304, 0)),  # 14
    Part.ArcOfCircle(Part.Circle(Vector(121.56558, 3258.068756, 0), Vector(0, 0, 1), 20.32), math.radians(30.75352), math.radians(149.24648)),  # 15
    Part.ArcOfCircle(Part.Circle(Vector(86.64058, 3278.849852, 0), Vector(0, 0, 1), 20.32), math.radians(-149.24648), math.radians(-30.75352)),  # 16
    Part.ArcOfCircle(Part.Circle(Vector(51.71558, 3258.068756, 0), Vector(0, 0, 1), 20.32), math.radians(30.75352), math.radians(149.24648)),  # 17
    Part.ArcOfCircle(Part.Circle(Vector(16.79058, 3278.849852, 0), Vector(0, 0, 1), 20.32), math.radians(-149.24648), math.radians(-30.75352)),  # 18
    Part.ArcOfCircle(Part.Circle(Vector(-18.13442, 3258.068756, 0), Vector(0, 0, 1), 20.32), math.radians(30.75352), math.radians(149.24648)),  # 19
], False)
sketch12.addConstraint([
    Sketcher.Constraint("Tangent", 0, 1, 1, 1),
    Sketcher.Constraint("Tangent", 1, 2, 2, 2),
    Sketcher.Constraint("Tangent", 2, 1, 3, 1),
    Sketcher.Constraint("Coincident", 3, 2, 4, 1),
    Sketcher.Constraint("Coincident", 4, 2, 5, 2),
    Sketcher.Constraint("Tangent", 5, 1, 6, 1),
    Sketcher.Constraint("Tangent", 6, 2, 7, 2),
    Sketcher.Constraint("Tangent", 7, 1, 8, 1),
    Sketcher.Constraint("Tangent", 8, 2, 9, 2),
    Sketcher.Constraint("Tangent", 9, 1, 10, 1),
    Sketcher.Constraint("Tangent", 10, 2, 11, 2),
    Sketcher.Constraint("Tangent", 11, 1, 12, 1),
    Sketcher.Constraint("Tangent", 12, 2, 13, 2),
    Sketcher.Constraint("Coincident", 13, 1, 14, 1),
    Sketcher.Constraint("Coincident", 14, 2, 15, 1),
    Sketcher.Constraint("Tangent", 15, 2, 16, 2),
    Sketcher.Constraint("Tangent", 16, 1, 17, 1),
    Sketcher.Constraint("Tangent", 17, 2, 18, 2),
    Sketcher.Constraint("Tangent", 18, 1, 19, 1),
    Sketcher.Constraint("Tangent", 19, 2, 0, 2),
    Sketcher.Constraint("Coincident", 5, 3, 3, 3),
    Sketcher.Constraint("Coincident", 6, 3, 2, 3),
    Sketcher.Constraint("Coincident", 7, 3, 1, 3),
    Sketcher.Constraint("Coincident", 8, 3, 0, 3),
    Sketcher.Constraint("Coincident", 15, 3, 13, 3),
    Sketcher.Constraint("Coincident", 16, 3, 12, 3),
    Sketcher.Constraint("Coincident", 17, 3, 11, 3),
    Sketcher.Constraint("Coincident", 18, 3, 10, 3),
    Sketcher.Constraint("Coincident", 19, 3, 9, 3),
    Sketcher.Constraint("Equal", 0, 1),
    Sketcher.Constraint("Equal", 1, 2),
    Sketcher.Constraint("Equal", 2, 3),
    Sketcher.Constraint("Equal", 7, 9),
    Sketcher.Constraint("Equal", 8, 10),
    Sketcher.Constraint("Equal", 9, 11),
    Sketcher.Constraint("Equal", 10, 12),
    Sketcher.Constraint("Equal", 11, 13),
    Sketcher.Constraint("Horizontal", 0, 3, 2, 3),
    Sketcher.Constraint("Horizontal", 1, 3, 3, 3),
    Sketcher.Constraint("Horizontal", 7, 3, 9, 3),
    Sketcher.Constraint("Horizontal", 8, 3, 10, 3),
    Sketcher.Constraint("Horizontal", 9, 3, 11, 3),
    Sketcher.Constraint("Horizontal", 10, 3, 12, 3),
    Sketcher.Constraint("Horizontal", 11, 3, 13, 3),
    Sketcher.Constraint("Horizontal", 12, 2, 13, 1),
    Sketcher.Constraint("Horizontal", 2, 1, 14, 2),
    Sketcher.Constraint("Radius", 0, Q("0.8 in")),
    Sketcher.Constraint("Radius", 5, Q("0.75 in")),
    Sketcher.Constraint("DistanceX", 1, 3, 11, 3, Q("5.5 in")),
    Sketcher.Constraint("DistanceY", -1, 1, 0, 1, Q("128.6795002 in")),
    Sketcher.Constraint("DistanceY", 4, 2, 3, 2, 0.6103),
    Sketcher.Constraint("DistanceX", 0, 3, -1, 1, 53.05942),
    Sketcher.Constraint("DistanceY", -1, 1, 3, 2, 3267.833549),
])
sketch12.setExpression("Constraints[46]", "Params.sketch12_radius")
sketch12.setExpression("Constraints[47]", "Params.sketch12_radius2")
pad11 = body11.newObject("PartDesign::Pad", "Pad010")
pad11.Profile = sketch12
pad11.setExpression("Length", "Params.pad11_length")
body12 = doc.addObject("PartDesign::Body", "Body011")

# Sketch on XZ plane
sketch13 = body12.newObject("Sketcher::SketchObject", "Sketch012")
sketch13.AttachmentSupport = (doc.getObject("XZ_Plane011"), [""])
sketch13.MapMode = "FlatFace"
sketch13.AttachmentOffset = App.Placement(Vector(0, 0, 1183.736052), App.Rotation())
add_polygon(sketch13, [(-2826.129913, -301.137626), (2913.280249, -301.137626), (2913.280249, 2339.071512), (-2826.129913, 2339.071512)])  # lines 0-3
sketch13.addConstraint([
    Sketcher.Constraint("Horizontal", 0),
    Sketcher.Constraint("Vertical", 1),
    Sketcher.Constraint("Horizontal", 2),
    Sketcher.Constraint("Vertical", 3),
    Sketcher.Constraint("DistanceX", 0, 1, 0, 2, 5739.410162),
    Sketcher.Constraint("DistanceY", 1, 1, 1, 2, 2640.209138),
    Sketcher.Constraint("DistanceX", -1, 1, 0, 2, 2913.280249),
    Sketcher.Constraint("DistanceY", 0, 2, -1, 1, 301.137626),
])
pad12 = body12.newObject("PartDesign::Pad", "Pad011")
pad12.Profile = sketch13
pad12.setExpression("Length", "Params.pad12_length")
body13 = doc.addObject("PartDesign::Body", "Body012")

# Sketch on YZ plane
sketch14 = body13.newObject("Sketcher::SketchObject", "Sketch013")
sketch14.AttachmentSupport = (doc.getObject("YZ_Plane012"), [""])
sketch14.MapMode = "FlatFace"
sketch14.AttachmentOffset = App.Placement(Vector(0, 0, 2913.280249), App.Rotation())
add_polygon(sketch14, [(-2299.292564, 3530.611753), (-2299.292564, 3351.644622), (-489.147872, 2678.413259), (-489.147872, 2857.38039)])  # lines 0-3
sketch14.addConstraint([
    Sketcher.Constraint("Vertical", 0),
    Sketcher.Constraint("Vertical", 2),
    Sketcher.Constraint("Parallel", 1, 3),
    Sketcher.Constraint("DistanceY", 0, 2, 0, 1, 178.967131),
    Sketcher.Constraint("DistanceY", -1, 1, 0, 2, 3351.644622),
    Sketcher.Constraint("DistanceX", 1, 2, -1, 1, 489.147872),
    Sketcher.Constraint("DistanceY", -1, 1, 1, 2, 2678.413259),
    Sketcher.Constraint("Distance", 1, 1931.285654),
])
pad13 = body13.newObject("PartDesign::Pad", "Pad012")
pad13.Profile = sketch14
pad13.Type = "TwoLengths"
pad13.setExpression("Length", "Params.pad13_length")
pad13.setExpression("Length2", "Params.pad13_length2")
pad13.Reversed = True
body14 = doc.addObject("PartDesign::Body", "Body013")

# Sketch on YZ plane
sketch15 = body14.newObject("Sketcher::SketchObject", "Sketch014")
sketch15.AttachmentSupport = (doc.getObject("YZ_Plane013"), [""])
sketch15.MapMode = "FlatFace"
sketch15.AttachmentOffset = App.Placement(Vector(0, 0, 3319.680249), App.Rotation())
sketch15.addGeometry([
    Part.LineSegment(Vector(-489.147872, 2857.38039, 0), Vector(-489.147872, 2791.572602, 0)),  # 0
    Part.ArcOfCircle(Part.Circle(Vector(-465.472094, 2791.572602, 0), Vector(0, 0, 1), 23.675778), math.radians(180), math.radians(270)),  # 1
    Part.LineSegment(Vector(-465.472094, 2767.896824, 0), Vector(-416.141397, 2767.896824, 0)),  # 2
    Part.ArcOfCircle(Part.Circle(Vector(-416.141397, 2793.046954, 0), Vector(0, 0, 1), 25.15013), math.radians(-90), math.radians(-12.313144)),  # 3
    Part.LineSegment(Vector(-391.569804, 2787.683576, 0), Vector(-376.356691, 2857.38039, 0)),  # 4
    Part.LineSegment(Vector(-376.356691, 2857.38039, 0), Vector(-384.660989, 2857.38039, 0)),  # 5
    Part.LineSegment(Vector(-384.660989, 2857.38039, 0), Vector(-399.496443, 2789.413767, 0)),  # 6
    Part.ArcOfCircle(Part.Circle(Vector(-416.141397, 2793.046954, 0), Vector(0, 0, 1), 17.036858), math.radians(-97.634015), math.radians(-12.313144)),  # 7
    Part.LineSegment(Vector(-418.404656, 2776.161096, 0), Vector(-465.563477, 2776.445991, 0)),  # 8
    Part.ArcOfCircle(Part.Circle(Vector(-465.472094, 2791.572602, 0), Vector(0, 0, 1), 15.126887), math.radians(-174.042965), math.radians(-90.34613)),  # 9
    Part.LineSegment(Vector(-480.517296, 2790.002693, 0), Vector(-480.517296, 2857.38039, 0)),  # 10
    Part.LineSegment(Vector(-480.517296, 2857.38039, 0), Vector(-489.147872, 2857.38039, 0)),  # 11
], False)
sketch15.addConstraint([
    Sketcher.Constraint("Tangent", 0, 2, 1, 1),
    Sketcher.Constraint("Tangent", 1, 2, 2, 1),
    Sketcher.Constraint("Tangent", 2, 2, 3, 1),
    Sketcher.Constraint("Tangent", 3, 2, 4, 1),
    Sketcher.Constraint("Coincident", 4, 2, 5, 1),
    Sketcher.Constraint("Coincident", 5, 2, 6, 1),
    Sketcher.Constraint("Tangent", 6, 2, 7, 2),
    Sketcher.Constraint("Coincident", 7, 1, 8, 1),
    Sketcher.Constraint("Tangent", 8, 2, 9, 2),
    Sketcher.Constraint("Coincident", 9, 1, 10, 1),
    Sketcher.Constraint("Coincident", 10, 2, 11, 1),
    Sketcher.Constraint("Coincident", 11, 2, 0, 1),
    Sketcher.Constraint("Vertical", 0),
    Sketcher.Constraint("Horizontal", 2),
    Sketcher.Constraint("Horizontal", 5),
    Sketcher.Constraint("Vertical", 10),
    Sketcher.Constraint("Horizontal", 11),
    Sketcher.Constraint("Coincident", 7, 3, 3, 3),
    Sketcher.Constraint("Coincident", 9, 3, 1, 3),
    Sketcher.Constraint("Parallel", 4, 6),
    Sketcher.Constraint("Horizontal", 5, 2, 10, 2),
    Sketcher.Constraint("Radius", 3, 25.15013),
    Sketcher.Constraint("Radius", 7, 17.036858),
    Sketcher.Constraint("Radius", 1, 23.675778),
    Sketcher.Constraint("Radius", 9, 15.126887),
    Sketcher.Constraint("DistanceY", 0, 2, 0, 1, 65.807788),
    Sketcher.Constraint("DistanceX", 9, 1, 1, 3, 15.045201),
    Sketcher.Constraint("Distance", 4, 71.337821),
    Sketcher.Constraint("Distance", 8, 47.159682),
    Sketcher.Constraint("DistanceX", 2, 1, 2, 2, 49.330697),
    Sketcher.Constraint("DistanceX", 0, 2, -1, 1, 489.147872),
    Sketcher.Constraint("DistanceY", -1, 1, 4, 2, 2857.38039),
])
pad14 = body14.newObject("PartDesign::Pad", "Pad013")
pad14.Profile = sketch15
pad14.setExpression("Length", "Params.pad14_length")
pad14.Reversed = True
body15 = doc.addObject("PartDesign::Body", "Body014")

# Sketch on XY plane
sketch16 = body15.newObject("Sketcher::SketchObject", "Sketch015")
sketch16.AttachmentSupport = (doc.getObject("XY_Plane014"), [""])
sketch16.MapMode = "FlatFace"
sketch16.AttachmentOffset = App.Placement(Vector(0, 0, 6 * 25.4), App.Rotation())
sketch16.addGeometry([
    Part.LineSegment(Vector(2658.385755, 2641.045689, 0), Vector(1438.08662, 2641.045689, 0)),  # 0
    Part.ArcOfCircle(Part.Circle(Vector(1438.08662, 2031.445689, 0), Vector(0, 0, 1), 609.6), math.radians(90), math.radians(179.8966)),  # 1
    Part.LineSegment(Vector(828.487613, 2032.545815, 0), Vector(826.012325, 660.945815, 0)),  # 2
    Part.ArcOfCircle(Part.Circle(Vector(1435.611333, 659.845689, 0), Vector(0, 0, 1), 609.6), math.radians(179.8966), math.radians(270)),  # 3
    Part.LineSegment(Vector(1435.611333, 50.245689, 0), Vector(2658.385755, 50.245689, 0)),  # 4
    Part.ArcOfCircle(Part.Circle(Vector(2658.385755, 659.845689, 0), Vector(0, 0, 1), 609.6), math.radians(-90), math.radians(0)),  # 5
    Part.LineSegment(Vector(3267.985755, 659.845689, 0), Vector(3267.985755, 2031.445689, 0)),  # 6
    Part.ArcOfCircle(Part.Circle(Vector(2658.385755, 2031.445689, 0), Vector(0, 0, 1), 609.6), math.radians(0), math.radians(90)),  # 7
], False)
sketch16.addConstraint([
    Sketcher.Constraint("Tangent", 0, 2, 1, 1),
    Sketcher.Constraint("Tangent", 1, 2, 2, 1),
    Sketcher.Constraint("Tangent", 2, 2, 3, 1),
    Sketcher.Constraint("Tangent", 3, 2, 4, 1),
    Sketcher.Constraint("Tangent", 4, 2, 5, 1),
    Sketcher.Constraint("Tangent", 5, 2, 6, 1),
    Sketcher.Constraint("Tangent", 6, 2, 7, 1),
    Sketcher.Constraint("Tangent", 7, 2, 0, 1),
    Sketcher.Constraint("Horizontal", 0),
    Sketcher.Constraint("Horizontal", 4),
    Sketcher.Constraint("Vertical", 6),
    Sketcher.Constraint("Equal", 1, 3),
    Sketcher.Constraint("Equal", 3, 5),
    Sketcher.Constraint("Equal", 5, 7),
    Sketcher.Constraint("Radius", 1, Q("24 in")),
    Sketcher.Constraint("DistanceY", 6, 1, 6, 2, Q("54 in")),
    Sketcher.Constraint("DistanceX", 0, 2, 0, 1, 1220.299135),
    Sketcher.Constraint("DistanceX", 4, 1, 4, 2, 1222.774423),
    Sketcher.Constraint("DistanceX", -1, 1, 1, 3, 1438.08662),
    Sketcher.Constraint("DistanceY", -1, 1, 1, 3, 2031.445689),
])
sketch16.setExpression("Constraints[14]", "Params.sketch16_radius")
sketch16.setExpression("Constraints[15]", "Params.sketch16_height")
pad15 = body15.newObject("PartDesign::Pad", "Pad014")
pad15.Profile = sketch16
pad15.setExpression("Length", "Params.pad15_length")

doc.recompute()
